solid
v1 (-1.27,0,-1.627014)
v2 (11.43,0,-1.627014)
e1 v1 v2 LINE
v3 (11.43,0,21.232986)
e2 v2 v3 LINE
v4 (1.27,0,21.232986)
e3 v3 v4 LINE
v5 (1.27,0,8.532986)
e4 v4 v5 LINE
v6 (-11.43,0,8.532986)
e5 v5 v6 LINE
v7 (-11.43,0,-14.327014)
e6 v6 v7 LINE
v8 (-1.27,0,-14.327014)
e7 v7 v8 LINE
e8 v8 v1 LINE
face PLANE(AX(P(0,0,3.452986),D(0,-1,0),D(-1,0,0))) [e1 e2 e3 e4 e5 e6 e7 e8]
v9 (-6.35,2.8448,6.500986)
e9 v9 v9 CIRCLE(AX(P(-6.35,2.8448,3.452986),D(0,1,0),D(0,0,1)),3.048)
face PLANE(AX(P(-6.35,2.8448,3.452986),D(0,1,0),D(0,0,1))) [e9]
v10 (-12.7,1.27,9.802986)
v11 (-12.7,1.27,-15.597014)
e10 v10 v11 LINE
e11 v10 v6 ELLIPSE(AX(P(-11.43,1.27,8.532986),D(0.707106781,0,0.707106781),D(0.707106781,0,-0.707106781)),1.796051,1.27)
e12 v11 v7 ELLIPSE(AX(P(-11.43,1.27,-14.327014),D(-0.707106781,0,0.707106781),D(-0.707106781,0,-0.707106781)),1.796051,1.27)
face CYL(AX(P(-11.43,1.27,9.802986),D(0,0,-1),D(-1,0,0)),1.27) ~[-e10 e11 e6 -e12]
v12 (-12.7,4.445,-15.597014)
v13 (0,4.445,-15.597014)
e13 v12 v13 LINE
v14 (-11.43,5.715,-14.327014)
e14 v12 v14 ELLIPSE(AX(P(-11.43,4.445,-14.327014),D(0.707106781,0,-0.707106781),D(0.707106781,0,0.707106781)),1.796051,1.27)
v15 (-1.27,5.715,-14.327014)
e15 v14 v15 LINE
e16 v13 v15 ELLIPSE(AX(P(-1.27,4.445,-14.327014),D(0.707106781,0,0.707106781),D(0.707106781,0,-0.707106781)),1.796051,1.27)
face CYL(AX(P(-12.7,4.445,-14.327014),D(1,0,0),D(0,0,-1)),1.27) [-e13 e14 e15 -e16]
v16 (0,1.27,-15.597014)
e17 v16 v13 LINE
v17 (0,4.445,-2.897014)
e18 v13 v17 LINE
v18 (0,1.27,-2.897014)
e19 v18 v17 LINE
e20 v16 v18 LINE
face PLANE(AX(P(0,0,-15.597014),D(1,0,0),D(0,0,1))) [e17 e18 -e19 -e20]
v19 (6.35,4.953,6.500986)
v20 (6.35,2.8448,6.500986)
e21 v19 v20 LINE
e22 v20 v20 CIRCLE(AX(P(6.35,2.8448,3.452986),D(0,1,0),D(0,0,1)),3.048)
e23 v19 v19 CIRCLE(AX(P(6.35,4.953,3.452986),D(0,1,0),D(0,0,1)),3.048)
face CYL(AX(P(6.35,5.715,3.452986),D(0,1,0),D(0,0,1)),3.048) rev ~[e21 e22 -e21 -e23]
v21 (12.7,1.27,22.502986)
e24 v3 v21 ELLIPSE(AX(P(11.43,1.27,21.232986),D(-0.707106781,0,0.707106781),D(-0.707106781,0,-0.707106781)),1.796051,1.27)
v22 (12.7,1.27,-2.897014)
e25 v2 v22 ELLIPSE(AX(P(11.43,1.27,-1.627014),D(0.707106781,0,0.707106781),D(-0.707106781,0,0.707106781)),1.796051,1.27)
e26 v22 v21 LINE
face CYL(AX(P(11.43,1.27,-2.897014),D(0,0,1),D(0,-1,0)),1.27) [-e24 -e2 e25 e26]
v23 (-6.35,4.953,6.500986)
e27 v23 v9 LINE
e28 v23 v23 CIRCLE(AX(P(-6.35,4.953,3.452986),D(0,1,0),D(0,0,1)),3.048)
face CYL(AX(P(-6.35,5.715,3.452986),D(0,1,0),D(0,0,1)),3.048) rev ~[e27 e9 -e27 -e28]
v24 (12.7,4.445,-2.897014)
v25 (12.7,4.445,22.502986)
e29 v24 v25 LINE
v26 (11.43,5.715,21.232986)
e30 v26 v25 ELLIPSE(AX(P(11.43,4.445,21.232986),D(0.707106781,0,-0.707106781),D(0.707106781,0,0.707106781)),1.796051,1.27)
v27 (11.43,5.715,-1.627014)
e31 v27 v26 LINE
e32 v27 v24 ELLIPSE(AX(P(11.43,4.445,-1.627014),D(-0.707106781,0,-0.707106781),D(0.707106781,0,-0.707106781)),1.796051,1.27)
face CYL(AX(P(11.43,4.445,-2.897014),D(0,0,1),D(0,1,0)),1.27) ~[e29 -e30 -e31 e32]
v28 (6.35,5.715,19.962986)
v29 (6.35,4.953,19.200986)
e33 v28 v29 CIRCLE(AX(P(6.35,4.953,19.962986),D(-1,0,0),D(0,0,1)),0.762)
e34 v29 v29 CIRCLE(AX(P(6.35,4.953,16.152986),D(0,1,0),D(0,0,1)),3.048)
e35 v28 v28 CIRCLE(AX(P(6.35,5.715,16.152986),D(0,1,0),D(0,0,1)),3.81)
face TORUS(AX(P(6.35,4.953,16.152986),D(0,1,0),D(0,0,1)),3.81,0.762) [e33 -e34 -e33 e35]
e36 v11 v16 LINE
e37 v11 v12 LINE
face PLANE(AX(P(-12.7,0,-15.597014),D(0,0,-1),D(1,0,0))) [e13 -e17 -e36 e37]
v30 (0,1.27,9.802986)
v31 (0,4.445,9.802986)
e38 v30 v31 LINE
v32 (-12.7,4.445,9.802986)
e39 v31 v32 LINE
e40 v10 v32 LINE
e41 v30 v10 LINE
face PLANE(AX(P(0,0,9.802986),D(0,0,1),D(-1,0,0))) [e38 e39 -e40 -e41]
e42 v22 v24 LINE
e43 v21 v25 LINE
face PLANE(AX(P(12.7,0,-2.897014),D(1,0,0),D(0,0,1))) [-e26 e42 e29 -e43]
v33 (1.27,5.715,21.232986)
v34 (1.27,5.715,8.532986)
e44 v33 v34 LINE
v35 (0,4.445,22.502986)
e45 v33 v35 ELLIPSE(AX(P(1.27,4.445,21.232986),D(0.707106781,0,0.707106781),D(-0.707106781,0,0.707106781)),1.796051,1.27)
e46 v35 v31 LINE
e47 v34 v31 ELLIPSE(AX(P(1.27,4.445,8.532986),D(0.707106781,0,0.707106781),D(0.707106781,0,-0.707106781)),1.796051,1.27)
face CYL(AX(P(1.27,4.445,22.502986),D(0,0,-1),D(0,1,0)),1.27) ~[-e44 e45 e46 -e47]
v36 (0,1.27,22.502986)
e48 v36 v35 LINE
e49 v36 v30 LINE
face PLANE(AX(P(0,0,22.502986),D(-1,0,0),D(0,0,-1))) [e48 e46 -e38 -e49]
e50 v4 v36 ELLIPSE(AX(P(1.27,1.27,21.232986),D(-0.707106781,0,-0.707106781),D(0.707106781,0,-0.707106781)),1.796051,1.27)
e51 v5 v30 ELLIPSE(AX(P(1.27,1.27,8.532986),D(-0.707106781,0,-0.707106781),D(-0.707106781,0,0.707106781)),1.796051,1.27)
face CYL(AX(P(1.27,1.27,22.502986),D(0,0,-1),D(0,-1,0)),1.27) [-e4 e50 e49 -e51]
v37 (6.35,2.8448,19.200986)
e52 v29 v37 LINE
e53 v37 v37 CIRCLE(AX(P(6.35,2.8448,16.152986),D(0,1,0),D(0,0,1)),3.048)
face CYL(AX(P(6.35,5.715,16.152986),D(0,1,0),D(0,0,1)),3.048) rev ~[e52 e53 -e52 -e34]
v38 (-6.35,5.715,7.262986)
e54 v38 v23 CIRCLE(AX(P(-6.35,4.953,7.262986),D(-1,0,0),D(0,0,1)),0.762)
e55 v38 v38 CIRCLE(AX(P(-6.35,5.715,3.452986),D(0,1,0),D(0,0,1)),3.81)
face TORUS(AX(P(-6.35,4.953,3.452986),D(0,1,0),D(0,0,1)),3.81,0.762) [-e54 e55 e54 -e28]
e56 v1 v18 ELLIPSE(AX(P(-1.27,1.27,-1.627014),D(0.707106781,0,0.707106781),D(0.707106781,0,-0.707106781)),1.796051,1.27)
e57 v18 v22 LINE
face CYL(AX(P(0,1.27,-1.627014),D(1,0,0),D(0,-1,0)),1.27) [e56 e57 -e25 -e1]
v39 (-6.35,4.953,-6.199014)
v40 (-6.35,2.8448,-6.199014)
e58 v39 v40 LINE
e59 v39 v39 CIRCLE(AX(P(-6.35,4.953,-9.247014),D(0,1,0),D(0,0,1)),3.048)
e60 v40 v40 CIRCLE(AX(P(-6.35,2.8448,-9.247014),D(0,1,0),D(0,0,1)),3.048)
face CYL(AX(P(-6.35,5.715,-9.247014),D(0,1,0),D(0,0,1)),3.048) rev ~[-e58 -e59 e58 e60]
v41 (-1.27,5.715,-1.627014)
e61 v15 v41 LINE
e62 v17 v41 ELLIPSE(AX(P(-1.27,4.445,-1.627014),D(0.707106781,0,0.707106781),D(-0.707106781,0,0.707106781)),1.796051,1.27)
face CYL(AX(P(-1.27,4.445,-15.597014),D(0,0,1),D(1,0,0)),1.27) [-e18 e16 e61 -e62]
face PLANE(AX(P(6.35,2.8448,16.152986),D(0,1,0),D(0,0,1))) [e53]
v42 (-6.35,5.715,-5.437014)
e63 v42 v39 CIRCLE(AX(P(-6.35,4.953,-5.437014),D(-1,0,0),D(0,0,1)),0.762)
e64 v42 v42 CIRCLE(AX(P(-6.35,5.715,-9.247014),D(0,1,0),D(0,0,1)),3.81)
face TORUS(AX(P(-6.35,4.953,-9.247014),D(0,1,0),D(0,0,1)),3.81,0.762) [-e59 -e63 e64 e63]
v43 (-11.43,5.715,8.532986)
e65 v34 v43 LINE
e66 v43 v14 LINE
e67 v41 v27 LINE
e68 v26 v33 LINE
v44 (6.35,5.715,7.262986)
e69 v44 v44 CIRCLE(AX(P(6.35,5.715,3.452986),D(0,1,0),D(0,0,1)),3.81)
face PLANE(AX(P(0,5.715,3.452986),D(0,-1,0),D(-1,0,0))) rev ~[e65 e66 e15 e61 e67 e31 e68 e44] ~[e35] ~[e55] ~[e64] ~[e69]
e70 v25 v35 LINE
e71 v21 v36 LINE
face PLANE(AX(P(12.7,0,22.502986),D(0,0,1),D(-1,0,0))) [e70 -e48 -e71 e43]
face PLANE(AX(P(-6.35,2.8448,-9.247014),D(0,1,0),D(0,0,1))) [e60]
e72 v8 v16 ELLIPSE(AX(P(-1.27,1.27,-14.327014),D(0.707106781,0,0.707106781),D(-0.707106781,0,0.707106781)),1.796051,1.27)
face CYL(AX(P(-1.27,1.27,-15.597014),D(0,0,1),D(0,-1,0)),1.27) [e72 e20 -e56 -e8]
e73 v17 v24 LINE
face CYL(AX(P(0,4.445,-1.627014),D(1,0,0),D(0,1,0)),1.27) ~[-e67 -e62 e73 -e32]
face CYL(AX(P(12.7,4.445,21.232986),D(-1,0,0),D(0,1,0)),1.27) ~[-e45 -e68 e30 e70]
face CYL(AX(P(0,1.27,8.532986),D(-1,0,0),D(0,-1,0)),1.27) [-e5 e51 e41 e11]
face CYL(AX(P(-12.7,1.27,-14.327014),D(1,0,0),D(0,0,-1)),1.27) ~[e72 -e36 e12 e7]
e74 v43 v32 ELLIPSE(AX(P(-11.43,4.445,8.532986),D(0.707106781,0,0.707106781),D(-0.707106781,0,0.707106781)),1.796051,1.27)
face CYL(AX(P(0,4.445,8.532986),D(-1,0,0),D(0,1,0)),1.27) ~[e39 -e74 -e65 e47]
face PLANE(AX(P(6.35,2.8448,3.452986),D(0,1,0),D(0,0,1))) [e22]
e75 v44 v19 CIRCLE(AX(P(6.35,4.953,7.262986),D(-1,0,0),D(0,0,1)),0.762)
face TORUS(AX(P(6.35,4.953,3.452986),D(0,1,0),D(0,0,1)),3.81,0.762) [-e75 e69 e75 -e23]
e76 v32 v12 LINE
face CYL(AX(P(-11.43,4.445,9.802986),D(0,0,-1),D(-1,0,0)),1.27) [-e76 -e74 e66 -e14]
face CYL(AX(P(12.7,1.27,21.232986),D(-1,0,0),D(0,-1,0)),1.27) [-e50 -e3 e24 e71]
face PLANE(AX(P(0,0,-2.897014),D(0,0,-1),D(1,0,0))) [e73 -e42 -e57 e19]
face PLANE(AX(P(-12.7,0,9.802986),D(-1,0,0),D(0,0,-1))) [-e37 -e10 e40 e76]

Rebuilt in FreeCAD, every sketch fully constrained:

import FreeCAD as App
import Part
import Sketcher
from FreeCAD import Vector
Q = App.Units.Quantity


def edges_at(feature, points):
    """Names of the edges that pass closest to the given points."""
    edges = feature.Shape.Edges
    near = lambda p: min(range(len(edges)), key=lambda i: edges[i].distToShape(Part.Vertex(*p))[0])
    return sorted({f"Edge{near(p) + 1}" for p in points})


def add_polygon(sketch, points):
    """Adds a closed chain of lines whose ends are joined by coincident constraints."""
    first, n = sketch.GeometryCount, len(points)
    for a, b in zip(points, points[1:] + points[:1]):
        sketch.addGeometry(Part.LineSegment(App.Vector(*a, 0), App.Vector(*b, 0)), False)
    for i in range(n):
        sketch.addConstraint(Sketcher.Constraint("Coincident", first + i, 2, first + (i + 1) % n, 1))

doc = App.newDocument("Part")
body = doc.addObject("PartDesign::Body", "Body")

# Sketch on XZ plane
sketch1 = doc.addObject("Sketcher::SketchObject", "Sketch")
body.addObject(sketch1)
sketch1.AttachmentSupport = (doc.XZ_Plane, [""])
sketch1.MapMode = "FlatFace"
add_polygon(sketch1, [(0, -16), (-13, -16), (-13, 10), (0, 10), (0, 23), (13, 23), (13, -3), (0, -3)])  # lines 0-7
sketch1.addConstraint(Sketcher.Constraint("Horizontal", 0))
sketch1.addConstraint(Sketcher.Constraint("Vertical", 1))
sketch1.addConstraint(Sketcher.Constraint("Horizontal", 2))
sketch1.addConstraint(Sketcher.Constraint("Vertical", 3))
sketch1.addConstraint(Sketcher.Constraint("Horizontal", 4))
sketch1.addConstraint(Sketcher.Constraint("Vertical", 5))
sketch1.addConstraint(Sketcher.Constraint("Horizontal", 6))
sketch1.addConstraint(Sketcher.Constraint("Vertical", 7))
sketch1.addConstraint(Sketcher.Constraint("PointOnObject", 2, 2, -2))
sketch1.addConstraint(Sketcher.Constraint("PointOnObject", 6, 2, -2))
sketch1.addConstraint(Sketcher.Constraint("Equal", 2, 4))
sketch1.addConstraint(Sketcher.Constraint("Equal", 6, 3))
sketch1.addConstraint(Sketcher.Constraint("Equal", 1, 5))
sketch1.addConstraint(Sketcher.Constraint("DistanceY", 1, 1, 1, 2, Q("1 in")))
sketch1.addConstraint(Sketcher.Constraint("DistanceX", 0, 2, 0, 1, Q("0.5 in")))
sketch1.addConstraint(Sketcher.Constraint("DistanceY", 0, 2, -1, 1, Q("15.597014 mm")))
pad1 = doc.addObject("PartDesign::Pad", "Pad")
body.addObject(pad1)
pad1.Profile = sketch1
pad1.Length = Q("0.225 in")
pad1.Reversed = True

# Sketch on XZ plane
sketch2 = doc.addObject("Sketcher::SketchObject", "Sketch001")
body.addObject(sketch2)
sketch2.AttachmentSupport = (doc.XZ_Plane, [""])
sketch2.MapMode = "FlatFace"
sketch2.AttachmentOffset = App.Placement(Vector(0, 0, -0.225 * 25.4), App.Rotation())
sketch2.addGeometry(Part.Circle(Vector(-6.3, -9.2, 0), Vector(0, 0, 1), 3), False)
sketch2.addGeometry(Part.Circle(Vector(6.3, 16.2, 0), Vector(0, 0, 1), 3), False)
sketch2.addGeometry(Part.Circle(Vector(-6.3, 3.5, 0), Vector(0, 0, 1), 3), False)
sketch2.addGeometry(Part.Circle(Vector(6.3, 3.5, 0), Vector(0, 0, 1), 3), False)
sketch2.addConstraint(Sketcher.Constraint("Equal", 0, 1))
sketch2.addConstraint(Sketcher.Constraint("Equal", 1, 2))
sketch2.addConstraint(Sketcher.Constraint("Equal", 2, 3))
sketch2.addConstraint(Sketcher.Constraint("Symmetric", 2, 3, 3, 3, -2))
sketch2.addConstraint(Sketcher.Constraint("Vertical", 0, 3, 2, 3))
sketch2.addConstraint(Sketcher.Constraint("Vertical", 1, 3, 3, 3))
sketch2.addConstraint(Sketcher.Constraint("Diameter", 0, Q("0.24 in")))
sketch2.addConstraint(Sketcher.Constraint("DistanceY", 0, 3, 1, 3, Q("1 in")))
sketch2.addConstraint(Sketcher.Constraint("DistanceX", 0, 3, 1, 3, Q("0.5 in")))
sketch2.addConstraint(Sketcher.Constraint("DistanceY", 0, 3, 2, 3, Q("0.5 in")))
sketch2.addConstraint(Sketcher.Constraint("DistanceY", 0, 3, -1, 1, Q("9.247014 mm")))
pocket1 = doc.addObject("PartDesign::Pocket", "Pocket")
body.addObject(pocket1)
pocket1.Profile = sketch2
pocket1.Length = Q("0.113 in")
pocket1.Reversed = True
doc.recompute()

fillet = doc.addObject("PartDesign::Fillet", "Fillet")
body.addObject(fillet)
fillet.Base = (pocket1, edges_at(pocket1, [
    (-6.35, 5.715, -15.597),
    (0, 5.715, -9.247),
    (6.35, 5.715, -2.897),
    (12.7, 5.715, 9.803),
    (6.35, 5.715, 22.503),
    (0, 5.715, 16.153),
    (-6.35, 5.715, 9.803),
    (-12.7, 5.715, -2.897),
]))
fillet.Radius = Q("0.05 in")
doc.recompute()

fillet2 = doc.addObject("PartDesign::Fillet", "Fillet001")
body.addObject(fillet2)
fillet2.Base = (fillet, edges_at(fillet, [
    (-12.7, 0, -2.897),
    (-6.35, 0, 9.803),
    (0, 0, 16.153),
    (6.35, 0, 22.503),
    (12.7, 0, 9.803),
    (6.35, 0, -2.897),
    (0, 0, -9.247),
    (-6.35, 0, -15.597),
]))
fillet2.Radius = Q("0.05 in")
doc.recompute()

fillet3 = doc.addObject("PartDesign::Fillet", "Fillet002")
body.addObject(fillet3)
fillet3.Base = (fillet2, edges_at(fillet2, [
    (-6.35, 5.715, -12.295),
    (6.35, 5.715, 0.405),
    (-6.35, 5.715, 0.405),
    (6.35, 5.715, 13.105),
]))
fillet3.Radius = Q("0.03 in")

doc.recompute()
